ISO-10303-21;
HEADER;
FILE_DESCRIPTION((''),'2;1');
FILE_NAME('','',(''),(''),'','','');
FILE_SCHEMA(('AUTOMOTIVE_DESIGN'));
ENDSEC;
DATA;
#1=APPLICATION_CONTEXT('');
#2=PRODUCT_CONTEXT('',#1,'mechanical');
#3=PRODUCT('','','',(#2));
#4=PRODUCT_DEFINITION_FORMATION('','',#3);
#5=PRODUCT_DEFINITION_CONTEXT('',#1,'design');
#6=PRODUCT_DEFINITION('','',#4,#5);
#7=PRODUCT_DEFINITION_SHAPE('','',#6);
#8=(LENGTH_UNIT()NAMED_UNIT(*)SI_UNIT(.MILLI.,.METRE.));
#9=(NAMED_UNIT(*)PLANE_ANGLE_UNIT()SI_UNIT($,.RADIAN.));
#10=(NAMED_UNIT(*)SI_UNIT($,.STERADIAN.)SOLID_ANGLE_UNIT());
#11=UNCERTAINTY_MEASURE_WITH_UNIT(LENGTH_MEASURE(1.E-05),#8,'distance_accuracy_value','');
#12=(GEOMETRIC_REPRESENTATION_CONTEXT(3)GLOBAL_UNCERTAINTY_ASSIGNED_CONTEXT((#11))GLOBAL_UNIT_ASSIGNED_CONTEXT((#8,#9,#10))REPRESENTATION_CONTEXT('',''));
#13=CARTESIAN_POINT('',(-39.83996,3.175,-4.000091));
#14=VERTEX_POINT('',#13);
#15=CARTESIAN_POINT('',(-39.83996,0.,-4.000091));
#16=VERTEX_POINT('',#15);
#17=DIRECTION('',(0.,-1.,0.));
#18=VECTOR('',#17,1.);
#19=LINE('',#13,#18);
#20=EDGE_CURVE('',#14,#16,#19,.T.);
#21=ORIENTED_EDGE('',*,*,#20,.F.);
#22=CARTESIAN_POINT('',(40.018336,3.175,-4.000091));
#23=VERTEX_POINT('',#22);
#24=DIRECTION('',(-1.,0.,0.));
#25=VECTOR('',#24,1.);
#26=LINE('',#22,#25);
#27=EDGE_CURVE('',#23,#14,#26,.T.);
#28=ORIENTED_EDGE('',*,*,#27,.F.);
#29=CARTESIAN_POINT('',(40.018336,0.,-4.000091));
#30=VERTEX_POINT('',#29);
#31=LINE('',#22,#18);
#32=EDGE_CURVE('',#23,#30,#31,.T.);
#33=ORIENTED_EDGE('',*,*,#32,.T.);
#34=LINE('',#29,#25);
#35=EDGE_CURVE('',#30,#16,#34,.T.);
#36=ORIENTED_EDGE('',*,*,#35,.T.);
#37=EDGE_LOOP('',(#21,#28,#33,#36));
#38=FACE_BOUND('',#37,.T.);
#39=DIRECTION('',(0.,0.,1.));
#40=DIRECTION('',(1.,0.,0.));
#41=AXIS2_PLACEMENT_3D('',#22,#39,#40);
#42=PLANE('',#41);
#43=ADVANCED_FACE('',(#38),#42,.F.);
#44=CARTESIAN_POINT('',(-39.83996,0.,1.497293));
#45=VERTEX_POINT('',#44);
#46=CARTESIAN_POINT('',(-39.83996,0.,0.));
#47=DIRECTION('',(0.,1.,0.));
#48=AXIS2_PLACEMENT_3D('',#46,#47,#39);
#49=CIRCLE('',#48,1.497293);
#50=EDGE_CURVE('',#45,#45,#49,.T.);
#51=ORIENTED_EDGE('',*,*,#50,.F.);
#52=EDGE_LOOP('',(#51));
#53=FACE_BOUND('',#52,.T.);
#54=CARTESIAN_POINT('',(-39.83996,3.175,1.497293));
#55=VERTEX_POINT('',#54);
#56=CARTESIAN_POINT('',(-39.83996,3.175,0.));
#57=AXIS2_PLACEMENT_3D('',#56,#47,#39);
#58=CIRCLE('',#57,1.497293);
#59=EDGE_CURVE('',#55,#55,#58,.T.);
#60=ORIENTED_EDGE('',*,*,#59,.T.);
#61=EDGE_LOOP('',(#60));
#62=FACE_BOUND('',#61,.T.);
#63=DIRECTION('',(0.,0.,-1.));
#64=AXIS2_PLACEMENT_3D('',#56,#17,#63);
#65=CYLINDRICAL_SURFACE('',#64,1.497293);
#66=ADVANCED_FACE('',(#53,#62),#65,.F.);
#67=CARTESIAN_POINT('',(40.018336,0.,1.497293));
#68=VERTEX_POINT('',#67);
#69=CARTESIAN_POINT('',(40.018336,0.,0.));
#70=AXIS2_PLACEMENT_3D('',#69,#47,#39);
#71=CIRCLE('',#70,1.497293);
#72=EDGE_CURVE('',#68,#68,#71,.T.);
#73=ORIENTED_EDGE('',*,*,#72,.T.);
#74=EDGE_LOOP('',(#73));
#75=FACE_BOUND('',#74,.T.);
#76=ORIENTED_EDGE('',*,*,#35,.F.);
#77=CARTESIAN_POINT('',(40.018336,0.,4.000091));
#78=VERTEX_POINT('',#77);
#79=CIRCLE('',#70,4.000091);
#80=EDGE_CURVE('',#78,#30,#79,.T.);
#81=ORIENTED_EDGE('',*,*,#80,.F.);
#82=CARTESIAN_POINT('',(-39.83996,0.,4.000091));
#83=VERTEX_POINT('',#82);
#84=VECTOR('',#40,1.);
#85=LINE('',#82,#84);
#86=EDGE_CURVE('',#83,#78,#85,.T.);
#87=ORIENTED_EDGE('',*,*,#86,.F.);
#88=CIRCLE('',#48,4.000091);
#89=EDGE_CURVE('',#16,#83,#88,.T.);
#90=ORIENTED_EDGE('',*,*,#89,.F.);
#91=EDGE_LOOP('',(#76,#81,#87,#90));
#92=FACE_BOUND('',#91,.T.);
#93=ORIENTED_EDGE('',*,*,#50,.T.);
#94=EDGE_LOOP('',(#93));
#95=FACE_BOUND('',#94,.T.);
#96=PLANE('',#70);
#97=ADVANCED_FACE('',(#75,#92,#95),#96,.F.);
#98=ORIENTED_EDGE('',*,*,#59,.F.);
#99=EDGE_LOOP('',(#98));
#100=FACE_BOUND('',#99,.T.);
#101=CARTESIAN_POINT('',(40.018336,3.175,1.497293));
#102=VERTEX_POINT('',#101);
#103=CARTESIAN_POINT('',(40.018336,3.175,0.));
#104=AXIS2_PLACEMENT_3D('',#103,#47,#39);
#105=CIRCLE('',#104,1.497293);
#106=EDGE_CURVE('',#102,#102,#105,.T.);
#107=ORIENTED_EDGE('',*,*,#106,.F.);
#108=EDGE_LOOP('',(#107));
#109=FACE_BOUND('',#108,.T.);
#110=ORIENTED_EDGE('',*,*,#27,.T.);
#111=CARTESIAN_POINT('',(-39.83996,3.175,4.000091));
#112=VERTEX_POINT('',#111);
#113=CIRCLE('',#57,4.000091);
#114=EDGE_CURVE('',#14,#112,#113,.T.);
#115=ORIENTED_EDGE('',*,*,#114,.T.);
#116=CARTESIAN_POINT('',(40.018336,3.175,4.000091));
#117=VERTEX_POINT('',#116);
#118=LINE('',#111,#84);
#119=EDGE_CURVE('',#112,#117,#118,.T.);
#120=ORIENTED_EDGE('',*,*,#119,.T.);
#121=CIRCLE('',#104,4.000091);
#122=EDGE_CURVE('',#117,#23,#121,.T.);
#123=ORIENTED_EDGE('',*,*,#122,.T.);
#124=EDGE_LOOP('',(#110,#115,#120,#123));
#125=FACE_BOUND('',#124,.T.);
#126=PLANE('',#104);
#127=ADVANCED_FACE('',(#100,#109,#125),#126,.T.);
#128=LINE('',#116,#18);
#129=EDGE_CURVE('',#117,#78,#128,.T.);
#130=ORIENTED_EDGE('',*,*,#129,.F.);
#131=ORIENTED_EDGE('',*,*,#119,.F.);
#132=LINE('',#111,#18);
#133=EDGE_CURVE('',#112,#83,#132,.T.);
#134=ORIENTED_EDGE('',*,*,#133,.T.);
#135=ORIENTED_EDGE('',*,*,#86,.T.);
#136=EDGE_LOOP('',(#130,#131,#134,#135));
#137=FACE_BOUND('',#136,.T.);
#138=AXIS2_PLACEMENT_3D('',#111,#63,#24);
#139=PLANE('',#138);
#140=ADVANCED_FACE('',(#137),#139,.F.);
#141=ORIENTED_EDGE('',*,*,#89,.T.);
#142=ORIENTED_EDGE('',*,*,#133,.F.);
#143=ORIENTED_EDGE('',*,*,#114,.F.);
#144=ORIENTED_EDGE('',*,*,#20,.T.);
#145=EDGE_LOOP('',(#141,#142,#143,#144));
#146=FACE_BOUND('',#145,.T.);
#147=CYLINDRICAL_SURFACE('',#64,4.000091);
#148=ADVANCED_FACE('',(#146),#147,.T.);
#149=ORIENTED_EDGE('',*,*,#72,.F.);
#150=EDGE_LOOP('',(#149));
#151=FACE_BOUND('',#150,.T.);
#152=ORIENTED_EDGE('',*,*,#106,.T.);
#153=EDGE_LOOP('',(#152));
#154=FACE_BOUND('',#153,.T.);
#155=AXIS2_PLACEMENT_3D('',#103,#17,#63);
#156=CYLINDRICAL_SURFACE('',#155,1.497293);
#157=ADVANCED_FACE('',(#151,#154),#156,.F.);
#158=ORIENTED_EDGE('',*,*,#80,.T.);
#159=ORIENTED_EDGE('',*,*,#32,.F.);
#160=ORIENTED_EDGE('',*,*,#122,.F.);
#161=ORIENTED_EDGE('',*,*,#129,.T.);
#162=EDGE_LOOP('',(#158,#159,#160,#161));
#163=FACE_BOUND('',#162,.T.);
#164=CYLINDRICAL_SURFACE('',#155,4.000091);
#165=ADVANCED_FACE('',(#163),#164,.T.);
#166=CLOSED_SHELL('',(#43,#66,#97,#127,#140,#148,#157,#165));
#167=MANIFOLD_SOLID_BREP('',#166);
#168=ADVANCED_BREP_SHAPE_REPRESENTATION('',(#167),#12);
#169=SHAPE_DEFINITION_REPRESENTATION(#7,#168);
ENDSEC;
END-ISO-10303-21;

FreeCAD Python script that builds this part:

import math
import FreeCAD as App
import Part
import Sketcher

V = App.Vector
Q = App.Units.Quantity

doc = App.newDocument("Part")
body = doc.addObject("PartDesign::Body", "Body")

sketch1 = body.newObject("Sketcher::SketchObject", "Sketch")
sketch1.AttachmentSupport = (doc.getObject("XZ_Plane"), [""])
sketch1.MapMode = "FlatFace"
sketch1.addGeometry([
    Part.LineSegment(V(40.018336, -4.000091, 0), V(-39.83996, -4.000091, 0)),
    Part.ArcOfCircle(Part.Circle(V(-39.83996, 0, 0), V(0, 0, 1), 4.000091), math.radians(90), math.radians(270)),
    Part.LineSegment(V(-39.83996, 4.000091, 0), V(40.018336, 4.000091, 0)),
    Part.ArcOfCircle(Part.Circle(V(40.018336, 0, 0), V(0, 0, 1), 4.000091), math.radians(-90), math.radians(90)),
    Part.Circle(V(-39.83996, 0, 0), V(0, 0, 1), 1.497293),
    Part.Circle(V(40.018336, 0, 0), V(0, 0, 1), 1.497293),
], False)
sketch1.addConstraint([
    Sketcher.Constraint("Tangent", 0, 2, 1, 2),
    Sketcher.Constraint("Tangent", 1, 1, 2, 1),
    Sketcher.Constraint("Tangent", 2, 2, 3, 2),
    Sketcher.Constraint("Tangent", 3, 1, 0, 1),
    Sketcher.Constraint("Horizontal", 0),
    Sketcher.Constraint("Horizontal", 2),
    Sketcher.Constraint("Coincident", 4, 3, 1, 3),
    Sketcher.Constraint("Coincident", 5, 3, 3, 3),
    Sketcher.Constraint("Equal", 4, 5),
    Sketcher.Constraint("PointOnObject", 1, 3, -1),
    Sketcher.Constraint("Radius", 1, Q("4.000091 mm")),
    Sketcher.Constraint("Diameter", 4, Q("2.994587 mm")),
    Sketcher.Constraint("DistanceX", 0, 2, 0, 1, Q("79.858296 mm")),
    Sketcher.Constraint("DistanceX", 1, 3, -1, 1, Q("39.83996 mm")),
])
pad1 = body.newObject("PartDesign::Pad", "Pad")
pad1.Profile = sketch1
pad1.Length = Q("0.125 in")
pad1.Reversed = True

doc.recompute()
